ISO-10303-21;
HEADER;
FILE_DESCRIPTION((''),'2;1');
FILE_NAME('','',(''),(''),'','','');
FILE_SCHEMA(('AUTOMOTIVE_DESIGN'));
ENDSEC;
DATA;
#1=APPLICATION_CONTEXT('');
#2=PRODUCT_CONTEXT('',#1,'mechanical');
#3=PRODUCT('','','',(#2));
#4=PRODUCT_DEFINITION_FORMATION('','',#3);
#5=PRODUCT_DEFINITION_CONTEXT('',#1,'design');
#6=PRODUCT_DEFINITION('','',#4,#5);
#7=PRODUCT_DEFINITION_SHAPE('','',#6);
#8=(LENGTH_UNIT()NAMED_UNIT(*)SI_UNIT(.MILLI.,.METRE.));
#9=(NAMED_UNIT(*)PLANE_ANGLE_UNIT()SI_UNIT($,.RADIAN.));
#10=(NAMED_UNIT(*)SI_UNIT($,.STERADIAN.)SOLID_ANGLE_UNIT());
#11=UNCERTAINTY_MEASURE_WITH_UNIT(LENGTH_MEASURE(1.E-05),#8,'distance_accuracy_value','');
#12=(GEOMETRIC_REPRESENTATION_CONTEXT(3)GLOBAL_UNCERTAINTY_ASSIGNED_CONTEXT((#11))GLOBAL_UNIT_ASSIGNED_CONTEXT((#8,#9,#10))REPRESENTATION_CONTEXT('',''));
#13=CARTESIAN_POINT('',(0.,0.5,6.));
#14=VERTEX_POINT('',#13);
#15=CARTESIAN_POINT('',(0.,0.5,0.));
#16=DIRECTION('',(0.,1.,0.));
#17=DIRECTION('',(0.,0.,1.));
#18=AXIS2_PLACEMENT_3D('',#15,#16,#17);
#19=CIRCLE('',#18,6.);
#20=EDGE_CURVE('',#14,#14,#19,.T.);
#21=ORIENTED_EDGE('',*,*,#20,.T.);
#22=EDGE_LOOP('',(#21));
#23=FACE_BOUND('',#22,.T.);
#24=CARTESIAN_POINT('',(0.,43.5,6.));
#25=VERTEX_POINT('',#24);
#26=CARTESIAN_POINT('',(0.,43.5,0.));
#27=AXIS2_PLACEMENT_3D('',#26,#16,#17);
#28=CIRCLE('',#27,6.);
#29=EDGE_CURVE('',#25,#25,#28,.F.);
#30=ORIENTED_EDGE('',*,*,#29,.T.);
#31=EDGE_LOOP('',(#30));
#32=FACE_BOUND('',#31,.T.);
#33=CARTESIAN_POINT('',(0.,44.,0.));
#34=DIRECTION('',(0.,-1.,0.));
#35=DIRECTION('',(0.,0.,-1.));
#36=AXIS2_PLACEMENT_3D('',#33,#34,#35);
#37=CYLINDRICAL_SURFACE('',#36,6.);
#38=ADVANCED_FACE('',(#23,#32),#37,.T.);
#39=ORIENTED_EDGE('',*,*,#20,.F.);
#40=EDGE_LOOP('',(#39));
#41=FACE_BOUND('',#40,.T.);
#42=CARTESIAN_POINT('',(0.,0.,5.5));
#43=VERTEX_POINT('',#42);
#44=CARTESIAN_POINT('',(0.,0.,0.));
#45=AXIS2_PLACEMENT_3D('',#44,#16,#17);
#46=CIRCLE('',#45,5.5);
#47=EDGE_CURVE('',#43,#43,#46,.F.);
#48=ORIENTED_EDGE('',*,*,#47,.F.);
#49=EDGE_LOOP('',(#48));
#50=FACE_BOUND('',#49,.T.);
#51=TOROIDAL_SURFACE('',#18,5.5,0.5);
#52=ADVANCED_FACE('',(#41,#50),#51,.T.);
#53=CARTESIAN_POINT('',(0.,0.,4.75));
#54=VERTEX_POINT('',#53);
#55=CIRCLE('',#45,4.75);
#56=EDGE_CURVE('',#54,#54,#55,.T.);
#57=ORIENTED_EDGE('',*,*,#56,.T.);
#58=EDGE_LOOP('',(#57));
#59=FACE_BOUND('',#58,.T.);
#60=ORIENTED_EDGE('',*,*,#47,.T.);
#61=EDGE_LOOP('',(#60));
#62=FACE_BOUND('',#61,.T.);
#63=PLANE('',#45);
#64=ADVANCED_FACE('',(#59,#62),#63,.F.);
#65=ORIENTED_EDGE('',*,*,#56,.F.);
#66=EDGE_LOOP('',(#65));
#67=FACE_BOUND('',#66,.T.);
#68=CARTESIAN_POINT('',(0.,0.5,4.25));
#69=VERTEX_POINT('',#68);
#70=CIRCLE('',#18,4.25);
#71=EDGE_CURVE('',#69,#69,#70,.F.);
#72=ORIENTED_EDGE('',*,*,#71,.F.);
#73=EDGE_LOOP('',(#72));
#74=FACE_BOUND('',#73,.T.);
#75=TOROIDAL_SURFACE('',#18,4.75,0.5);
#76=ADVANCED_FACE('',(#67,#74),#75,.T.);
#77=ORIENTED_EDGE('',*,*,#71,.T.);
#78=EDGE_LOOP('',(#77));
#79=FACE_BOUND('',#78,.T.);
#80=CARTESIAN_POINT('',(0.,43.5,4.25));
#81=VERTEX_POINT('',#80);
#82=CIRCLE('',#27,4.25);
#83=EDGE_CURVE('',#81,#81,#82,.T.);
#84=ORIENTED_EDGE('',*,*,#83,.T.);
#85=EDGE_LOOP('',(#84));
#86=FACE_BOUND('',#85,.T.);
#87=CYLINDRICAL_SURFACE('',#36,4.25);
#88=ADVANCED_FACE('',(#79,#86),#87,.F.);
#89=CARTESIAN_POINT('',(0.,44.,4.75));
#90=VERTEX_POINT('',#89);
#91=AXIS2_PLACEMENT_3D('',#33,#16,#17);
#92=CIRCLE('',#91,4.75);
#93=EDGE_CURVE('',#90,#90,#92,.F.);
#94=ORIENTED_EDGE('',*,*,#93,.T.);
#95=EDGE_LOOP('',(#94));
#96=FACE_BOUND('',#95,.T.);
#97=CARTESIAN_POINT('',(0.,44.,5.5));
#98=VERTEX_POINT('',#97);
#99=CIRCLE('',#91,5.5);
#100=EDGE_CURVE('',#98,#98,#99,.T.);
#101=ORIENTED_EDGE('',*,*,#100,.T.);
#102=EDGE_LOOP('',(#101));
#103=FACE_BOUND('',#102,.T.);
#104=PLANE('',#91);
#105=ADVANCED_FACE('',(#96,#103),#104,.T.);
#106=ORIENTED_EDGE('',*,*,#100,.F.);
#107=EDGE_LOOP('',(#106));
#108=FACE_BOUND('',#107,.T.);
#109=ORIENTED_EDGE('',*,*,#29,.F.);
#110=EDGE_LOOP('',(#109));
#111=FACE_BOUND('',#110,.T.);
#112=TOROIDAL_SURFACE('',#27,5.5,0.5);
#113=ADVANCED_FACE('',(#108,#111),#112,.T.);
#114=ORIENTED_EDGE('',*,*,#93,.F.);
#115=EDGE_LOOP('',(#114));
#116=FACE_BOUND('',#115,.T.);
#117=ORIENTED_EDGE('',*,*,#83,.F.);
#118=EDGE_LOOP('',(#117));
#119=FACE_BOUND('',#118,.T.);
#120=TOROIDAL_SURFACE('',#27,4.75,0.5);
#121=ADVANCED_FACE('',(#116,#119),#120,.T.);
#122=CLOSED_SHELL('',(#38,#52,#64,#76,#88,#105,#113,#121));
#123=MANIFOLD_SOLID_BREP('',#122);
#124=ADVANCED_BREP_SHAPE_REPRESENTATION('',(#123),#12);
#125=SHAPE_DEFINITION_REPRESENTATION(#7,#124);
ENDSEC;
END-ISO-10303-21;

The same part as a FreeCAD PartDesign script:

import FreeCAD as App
import Part
import Sketcher
from FreeCAD import Vector
Q = App.Units.Quantity


def edges_at(feature, points):
    """Names of the edges that pass closest to the given points."""
    edges = feature.Shape.Edges
    near = lambda p: min(range(len(edges)), key=lambda i: edges[i].distToShape(Part.Vertex(*p))[0])
    return sorted({f"Edge{near(p) + 1}" for p in points})

doc = App.newDocument("Part")
params = doc.addObject("Spreadsheet::Sheet", "Params")
for row, (alias, value) in enumerate([
    ("sketch1_diameter", "12 mm"),
    ("sketch1_diameter2", "8.5 mm"),
    ("pad1_length", "44 mm"),
    ("fillet_radius", "0.5 mm"),
], start=1):
    params.set(f"A{row}", alias)
    params.set(f"B{row}", "=" + value)
    params.setAlias(f"B{row}", alias)

body = doc.addObject("PartDesign::Body", "Body")

sketch1 = body.newObject("Sketcher::SketchObject", "Sketch")
sketch1.AttachmentSupport = (doc.getObject("XZ_Plane"), [""])
sketch1.MapMode = "FlatFace"
sketch1.addGeometry([
    Part.Circle(Vector(0, 0, 0), Vector(0, 0, 1), 6),
    Part.Circle(Vector(0, 0, 0), Vector(0, 0, 1), 4.2),
], False)
sketch1.addConstraint([
    Sketcher.Constraint("Coincident", 0, 3, -1, 1),
    Sketcher.Constraint("Coincident", 1, 3, -1, 1),
    Sketcher.Constraint("Diameter", 0, Q("12 mm")),
    Sketcher.Constraint("Diameter", 1, Q("8.5 mm")),
])
sketch1.setExpression("Constraints[2]", "Params.sketch1_diameter")
sketch1.setExpression("Constraints[3]", "Params.sketch1_diameter2")
pad1 = body.newObject("PartDesign::Pad", "Pad")
pad1.Profile = sketch1
pad1.setExpression("Length", "Params.pad1_length")
pad1.Reversed = True
doc.recompute()

fillet = body.newObject("PartDesign::Fillet", "Fillet")
fillet.Base = (pad1, edges_at(pad1, [
    (0, 0, -6),
    (0, 44, -6),
    (0, 0, -4.25),
    (0, 44, -4.25),
]))
fillet.setExpression("Radius", "Params.fillet_radius")

doc.recompute()
